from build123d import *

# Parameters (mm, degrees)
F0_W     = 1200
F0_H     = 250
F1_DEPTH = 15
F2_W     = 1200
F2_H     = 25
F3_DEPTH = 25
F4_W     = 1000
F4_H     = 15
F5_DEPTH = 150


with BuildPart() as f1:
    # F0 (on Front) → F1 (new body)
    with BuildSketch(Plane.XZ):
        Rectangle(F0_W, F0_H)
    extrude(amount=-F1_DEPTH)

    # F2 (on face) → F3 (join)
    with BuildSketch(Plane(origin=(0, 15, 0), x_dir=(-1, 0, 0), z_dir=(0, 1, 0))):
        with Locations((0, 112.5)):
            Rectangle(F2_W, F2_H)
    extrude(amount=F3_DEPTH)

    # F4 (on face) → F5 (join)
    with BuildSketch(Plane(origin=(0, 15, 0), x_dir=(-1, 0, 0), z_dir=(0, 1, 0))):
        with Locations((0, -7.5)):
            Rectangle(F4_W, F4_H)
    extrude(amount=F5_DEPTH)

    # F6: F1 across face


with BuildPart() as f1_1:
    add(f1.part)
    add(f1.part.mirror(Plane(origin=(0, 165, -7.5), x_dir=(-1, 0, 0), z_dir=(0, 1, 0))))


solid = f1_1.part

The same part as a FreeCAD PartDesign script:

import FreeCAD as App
import Part
import Sketcher
from FreeCAD import Vector

doc = App.newDocument("Part")
body = doc.addObject("PartDesign::Body", "Body")

# Sketch on XZ plane
sketch1 = doc.addObject("Sketcher::SketchObject", "Sketch")
body.addObject(sketch1)
sketch1.AttachmentSupport = (doc.XZ_Plane, [""])
sketch1.MapMode = "FlatFace"
sketch1.addGeometry([
    Part.LineSegment(Vector(-600, 125, 0), Vector(-600, -125, 0)),
    Part.LineSegment(Vector(-600, -125, 0), Vector(600, -125, 0)),
    Part.LineSegment(Vector(600, -125, 0), Vector(600, 125, 0)),
    Part.LineSegment(Vector(600, 125, 0), Vector(-600, 125, 0)),
], False)
sketch1.addConstraint([
    Sketcher.Constraint("Coincident", 0, 2, 1, 1),
    Sketcher.Constraint("Coincident", 1, 2, 2, 1),
    Sketcher.Constraint("Coincident", 2, 2, 3, 1),
    Sketcher.Constraint("Coincident", 3, 2, 0, 1),
    Sketcher.Constraint("Vertical", 0),
    Sketcher.Constraint("Horizontal", 1),
    Sketcher.Constraint("Vertical", 2),
    Sketcher.Constraint("Horizontal", 3),
    Sketcher.Constraint("Symmetric", 0, 2, 2, 2, -1, 1),
    Sketcher.Constraint("DistanceX", 1, 1, 1, 2, 1200.0),
    Sketcher.Constraint("DistanceY", 0, 2, 0, 1, 250.0),
])
pad1 = doc.addObject("PartDesign::Pad", "Pad")
body.addObject(pad1)
pad1.Profile = sketch1
pad1.Length = 15
pad1.Reversed = True

# Sketch on XZ plane
sketch2 = doc.addObject("Sketcher::SketchObject", "Sketch001")
body.addObject(sketch2)
sketch2.AttachmentSupport = (doc.XZ_Plane, [""])
sketch2.MapMode = "FlatFace"
sketch2.AttachmentOffset = App.Placement(Vector(0, 0, -15), App.Rotation())
sketch2.addGeometry([
    Part.LineSegment(Vector(600, 125, 0), Vector(600, 100, 0)),
    Part.LineSegment(Vector(600, 100, 0), Vector(-600, 100, 0)),
    Part.LineSegment(Vector(-600, 100, 0), Vector(-600, 125, 0)),
    Part.LineSegment(Vector(-600, 125, 0), Vector(600, 125, 0)),
], False)
sketch2.addConstraint([
    Sketcher.Constraint("Coincident", 0, 2, 1, 1),
    Sketcher.Constraint("Coincident", 1, 2, 2, 1),
    Sketcher.Constraint("Coincident", 2, 2, 3, 1),
    Sketcher.Constraint("Coincident", 3, 2, 0, 1),
    Sketcher.Constraint("Vertical", 0),
    Sketcher.Constraint("Horizontal", 1),
    Sketcher.Constraint("Vertical", 2),
    Sketcher.Constraint("Horizontal", 3),
    Sketcher.Constraint("DistanceX", 1, 2, 1, 1, 1200.0),
    Sketcher.Constraint("DistanceY", 0, 2, 0, 1, 25.0),
    Sketcher.Constraint("DistanceX", -1, 1, 0, 2, 600.0),
    Sketcher.Constraint("DistanceY", -1, 1, 0, 2, 100.0),
])
pad2 = doc.addObject("PartDesign::Pad", "Pad001")
body.addObject(pad2)
pad2.Profile = sketch2
pad2.Length = 25
pad2.Reversed = True

# Sketch on XZ plane
sketch3 = doc.addObject("Sketcher::SketchObject", "Sketch002")
body.addObject(sketch3)
sketch3.AttachmentSupport = (doc.XZ_Plane, [""])
sketch3.MapMode = "FlatFace"
sketch3.AttachmentOffset = App.Placement(Vector(0, 0, -15), App.Rotation())
sketch3.addGeometry([
    Part.LineSegment(Vector(500, 0, 0), Vector(500, -15, 0)),
    Part.LineSegment(Vector(500, -15, 0), Vector(-500, -15, 0)),
    Part.LineSegment(Vector(-500, -15, 0), Vector(-500, 0, 0)),
    Part.LineSegment(Vector(-500, 0, 0), Vector(500, 0, 0)),
], False)
sketch3.addConstraint([
    Sketcher.Constraint("Coincident", 0, 2, 1, 1),
    Sketcher.Constraint("Coincident", 1, 2, 2, 1),
    Sketcher.Constraint("Coincident", 2, 2, 3, 1),
    Sketcher.Constraint("Coincident", 3, 2, 0, 1),
    Sketcher.Constraint("Vertical", 0),
    Sketcher.Constraint("Horizontal", 1),
    Sketcher.Constraint("Vertical", 2),
    Sketcher.Constraint("Horizontal", 3),
    Sketcher.Constraint("Symmetric", 2, 2, 3, 2, -1, 1),
    Sketcher.Constraint("DistanceX", 1, 2, 1, 1, 1000.0),
    Sketcher.Constraint("DistanceY", 0, 2, 0, 1, 15.0),
])
pad3 = doc.addObject("PartDesign::Pad", "Pad002")
body.addObject(pad3)
pad3.Profile = sketch3
pad3.Length = 150
pad3.Reversed = True
body2 = doc.addObject("PartDesign::Body", "Body001")
doc.recompute()

body2.BaseFeature = body
doc.recompute()

mirroring = doc.addObject("Part::Mirroring", "Mirroring")
mirroring.Source = body
mirroring.Base = Vector(0, 165, -7.5)
mirroring.Normal = Vector(0, 1, 0)
body3 = doc.addObject("PartDesign::Body", "Body002")
body3.BaseFeature = mirroring
boolean = doc.addObject("PartDesign::Boolean", "Boolean")
body2.addObject(boolean)
boolean.Type = "Fuse"
boolean.addObjects([body3])
doc.recompute()
mirroring.Visibility = False

doc.recompute()
